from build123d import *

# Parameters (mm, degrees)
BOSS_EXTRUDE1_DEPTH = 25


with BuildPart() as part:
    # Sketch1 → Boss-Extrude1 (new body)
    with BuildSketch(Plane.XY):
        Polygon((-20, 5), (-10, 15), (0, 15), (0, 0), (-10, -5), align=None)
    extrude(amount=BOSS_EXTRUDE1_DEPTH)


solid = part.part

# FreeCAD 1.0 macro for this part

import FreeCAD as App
import Part
import Sketcher

V = App.Vector


def add_polygon(sketch, points):
    """Adds a closed chain of lines whose ends are joined by coincident constraints."""
    first, n = sketch.GeometryCount, len(points)
    for a, b in zip(points, points[1:] + points[:1]):
        sketch.addGeometry(Part.LineSegment(App.Vector(*a, 0), App.Vector(*b, 0)), False)
    for i in range(n):
        sketch.addConstraint(Sketcher.Constraint("Coincident", first + i, 2, first + (i + 1) % n, 1))

doc = App.newDocument("Part")
body = doc.addObject("PartDesign::Body", "Body")

sketch1 = body.newObject("Sketcher::SketchObject", "Sketch")
sketch1.AttachmentSupport = (doc.getObject("XY_Plane"), [""])
sketch1.MapMode = "FlatFace"
add_polygon(sketch1, [(-10, 15), (-20, 5), (-10, -5), (0, 0), (0, 15)])
sketch1.addConstraint(Sketcher.Constraint("Vertical", 3))
sketch1.addConstraint(Sketcher.Constraint("Horizontal", 4))
sketch1.addConstraint(Sketcher.Constraint("Coincident", 2, 2, -1, 1))
sketch1.addConstraint(Sketcher.Constraint("Perpendicular", 0, 1))
sketch1.addConstraint(Sketcher.Constraint("Vertical", 1, 2, 4, 2))
sketch1.addConstraint(Sketcher.Constraint("Equal", 0, 1))
sketch1.addConstraint(Sketcher.Constraint("DistanceX", 4, 2, 4, 1, 10.0))
sketch1.addConstraint(Sketcher.Constraint("DistanceY", 3, 1, 3, 2, 15.0))
sketch1.addConstraint(Sketcher.Constraint("DistanceX", 0, 2, -1, 1, 20.0))
pad1 = body.newObject("PartDesign::Pad", "Pad")
pad1.Profile = sketch1
pad1.Length = 25

doc.recompute()
